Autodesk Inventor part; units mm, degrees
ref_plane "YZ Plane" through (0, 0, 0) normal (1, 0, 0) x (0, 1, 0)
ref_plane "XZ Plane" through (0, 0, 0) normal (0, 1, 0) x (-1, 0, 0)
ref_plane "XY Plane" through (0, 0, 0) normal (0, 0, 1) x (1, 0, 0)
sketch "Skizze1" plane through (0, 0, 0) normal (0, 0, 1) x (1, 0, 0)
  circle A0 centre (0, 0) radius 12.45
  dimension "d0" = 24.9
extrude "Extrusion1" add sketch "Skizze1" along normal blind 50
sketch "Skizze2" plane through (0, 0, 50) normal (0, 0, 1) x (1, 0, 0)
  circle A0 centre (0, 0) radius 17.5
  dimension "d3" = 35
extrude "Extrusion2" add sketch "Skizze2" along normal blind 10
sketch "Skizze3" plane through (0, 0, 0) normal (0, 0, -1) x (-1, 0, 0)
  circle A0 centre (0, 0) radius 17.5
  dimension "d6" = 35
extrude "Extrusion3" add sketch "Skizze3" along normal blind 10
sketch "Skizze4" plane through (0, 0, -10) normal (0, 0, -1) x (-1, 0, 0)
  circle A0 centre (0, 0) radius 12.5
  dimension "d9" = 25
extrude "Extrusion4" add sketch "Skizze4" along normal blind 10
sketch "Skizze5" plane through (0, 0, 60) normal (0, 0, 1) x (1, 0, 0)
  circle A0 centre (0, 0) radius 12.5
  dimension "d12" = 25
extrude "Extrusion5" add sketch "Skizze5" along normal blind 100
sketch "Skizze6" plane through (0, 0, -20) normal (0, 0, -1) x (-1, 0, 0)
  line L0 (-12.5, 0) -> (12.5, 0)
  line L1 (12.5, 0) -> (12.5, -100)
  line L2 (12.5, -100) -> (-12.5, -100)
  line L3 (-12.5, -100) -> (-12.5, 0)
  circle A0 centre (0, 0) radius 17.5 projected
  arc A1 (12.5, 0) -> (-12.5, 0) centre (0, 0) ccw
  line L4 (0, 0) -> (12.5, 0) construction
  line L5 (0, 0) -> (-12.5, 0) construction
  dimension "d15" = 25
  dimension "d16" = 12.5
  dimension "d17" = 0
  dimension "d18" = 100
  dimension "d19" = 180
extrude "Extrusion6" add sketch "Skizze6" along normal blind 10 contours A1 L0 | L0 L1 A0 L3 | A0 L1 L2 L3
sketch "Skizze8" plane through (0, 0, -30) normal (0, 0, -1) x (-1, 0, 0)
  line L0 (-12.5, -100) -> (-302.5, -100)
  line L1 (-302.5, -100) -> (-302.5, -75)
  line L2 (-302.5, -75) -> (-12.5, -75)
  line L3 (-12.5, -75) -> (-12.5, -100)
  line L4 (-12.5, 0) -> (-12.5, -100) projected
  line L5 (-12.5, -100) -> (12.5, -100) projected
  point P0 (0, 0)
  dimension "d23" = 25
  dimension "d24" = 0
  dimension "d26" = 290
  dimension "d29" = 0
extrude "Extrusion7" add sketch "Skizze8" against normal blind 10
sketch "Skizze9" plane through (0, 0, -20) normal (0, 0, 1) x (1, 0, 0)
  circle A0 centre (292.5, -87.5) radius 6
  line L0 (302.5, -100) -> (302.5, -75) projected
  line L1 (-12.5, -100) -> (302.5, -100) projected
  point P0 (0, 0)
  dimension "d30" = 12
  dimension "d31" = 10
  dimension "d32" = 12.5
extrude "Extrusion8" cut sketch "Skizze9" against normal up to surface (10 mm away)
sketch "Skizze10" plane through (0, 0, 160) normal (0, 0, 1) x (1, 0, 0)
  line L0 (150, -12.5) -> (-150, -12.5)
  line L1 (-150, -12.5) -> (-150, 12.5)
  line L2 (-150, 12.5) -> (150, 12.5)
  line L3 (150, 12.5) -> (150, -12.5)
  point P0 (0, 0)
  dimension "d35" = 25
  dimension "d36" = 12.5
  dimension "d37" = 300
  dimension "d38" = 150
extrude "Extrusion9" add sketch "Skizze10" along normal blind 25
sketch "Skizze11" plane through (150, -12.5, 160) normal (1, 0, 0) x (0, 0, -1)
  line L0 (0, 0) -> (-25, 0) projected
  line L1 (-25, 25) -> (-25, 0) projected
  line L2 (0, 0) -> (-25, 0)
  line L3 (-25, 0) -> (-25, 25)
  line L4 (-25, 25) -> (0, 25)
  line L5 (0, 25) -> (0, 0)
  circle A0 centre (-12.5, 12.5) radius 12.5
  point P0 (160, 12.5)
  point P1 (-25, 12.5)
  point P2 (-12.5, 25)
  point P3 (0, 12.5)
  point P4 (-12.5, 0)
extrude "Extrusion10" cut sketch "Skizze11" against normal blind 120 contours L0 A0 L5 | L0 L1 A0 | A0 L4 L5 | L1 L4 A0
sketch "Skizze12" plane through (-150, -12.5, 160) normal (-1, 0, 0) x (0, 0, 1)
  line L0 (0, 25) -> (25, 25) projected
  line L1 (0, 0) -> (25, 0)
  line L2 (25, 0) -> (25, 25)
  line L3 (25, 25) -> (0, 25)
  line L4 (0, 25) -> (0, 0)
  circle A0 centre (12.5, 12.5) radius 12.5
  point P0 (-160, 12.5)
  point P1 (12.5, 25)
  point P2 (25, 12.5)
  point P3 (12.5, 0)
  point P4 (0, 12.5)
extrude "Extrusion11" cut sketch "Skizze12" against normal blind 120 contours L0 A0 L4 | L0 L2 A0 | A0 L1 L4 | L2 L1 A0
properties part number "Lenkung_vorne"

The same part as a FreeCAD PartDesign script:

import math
import FreeCAD as App
import Part
import Sketcher
Q = App.Units.Quantity

doc = App.newDocument("Part")
body = doc.addObject("PartDesign::Body", "Body")

sketch1 = body.newObject("Sketcher::SketchObject", "Sketch")
sketch1.AttachmentSupport = (doc.getObject("XY_Plane"), [""])
sketch1.MapMode = "FlatFace"
sketch1.addGeometry(Part.Circle(App.Vector(0, 0, 0), App.Vector(0, 0, 1), 12), False)
sketch1.addConstraint([
    Sketcher.Constraint("Coincident", 0, 3, -1, 1),
    Sketcher.Constraint("Diameter", 0, Q("24.9 mm")),
])
pad1 = body.newObject("PartDesign::Pad", "Pad")
pad1.Profile = sketch1
pad1.Length = 50

sketch2 = body.newObject("Sketcher::SketchObject", "Sketch001")
sketch2.AttachmentSupport = (doc.getObject("XY_Plane"), [""])
sketch2.MapMode = "FlatFace"
sketch2.AttachmentOffset = App.Placement(App.Vector(0, 0, 50), App.Rotation())
sketch2.addGeometry(Part.Circle(App.Vector(0, 0, 0), App.Vector(0, 0, 1), 18), False)
sketch2.addConstraint([
    Sketcher.Constraint("Coincident", 0, 3, -1, 1),
    Sketcher.Constraint("Diameter", 0, Q("35 mm")),
])
pad2 = body.newObject("PartDesign::Pad", "Pad001")
pad2.Profile = sketch2
pad2.Length = 10

sketch3 = body.newObject("Sketcher::SketchObject", "Sketch002")
sketch3.AttachmentSupport = (doc.getObject("XY_Plane"), [""])
sketch3.MapMode = "FlatFace"
sketch3.addGeometry(Part.Circle(App.Vector(0, 0, 0), App.Vector(0, 0, 1), 18), False)
sketch3.addConstraint([
    Sketcher.Constraint("Coincident", 0, 3, -1, 1),
    Sketcher.Constraint("Diameter", 0, Q("35 mm")),
])
pad3 = body.newObject("PartDesign::Pad", "Pad002")
pad3.Profile = sketch3
pad3.Length = 10
pad3.Reversed = True

sketch4 = body.newObject("Sketcher::SketchObject", "Sketch003")
sketch4.AttachmentSupport = (doc.getObject("XY_Plane"), [""])
sketch4.MapMode = "FlatFace"
sketch4.AttachmentOffset = App.Placement(App.Vector(0, 0, -10), App.Rotation())
sketch4.addGeometry(Part.Circle(App.Vector(0, 0, 0), App.Vector(0, 0, 1), 12), False)
sketch4.addConstraint([
    Sketcher.Constraint("Coincident", 0, 3, -1, 1),
    Sketcher.Constraint("Diameter", 0, Q("25 mm")),
])
pad4 = body.newObject("PartDesign::Pad", "Pad003")
pad4.Profile = sketch4
pad4.Length = 10
pad4.Reversed = True

sketch5 = body.newObject("Sketcher::SketchObject", "Sketch004")
sketch5.AttachmentSupport = (doc.getObject("XY_Plane"), [""])
sketch5.MapMode = "FlatFace"
sketch5.AttachmentOffset = App.Placement(App.Vector(0, 0, 60), App.Rotation())
sketch5.addGeometry(Part.Circle(App.Vector(0, 0, 0), App.Vector(0, 0, 1), 12), False)
sketch5.addConstraint([
    Sketcher.Constraint("Coincident", 0, 3, -1, 1),
    Sketcher.Constraint("Diameter", 0, Q("25 mm")),
])
pad5 = body.newObject("PartDesign::Pad", "Pad004")
pad5.Profile = sketch5
pad5.Length = 100

sketch6 = body.newObject("Sketcher::SketchObject", "Sketch005")
sketch6.AttachmentSupport = (doc.getObject("XY_Plane"), [""])
sketch6.MapMode = "FlatFace"
sketch6.AttachmentOffset = App.Placement(App.Vector(0, 0, -20), App.Rotation())
sketch6.addGeometry([
    Part.ArcOfCircle(Part.Circle(App.Vector(0, 0, 0), App.Vector(0, 0, 1), 12), math.radians(0), math.radians(180)),
    Part.LineSegment(App.Vector(12, 0, 0), App.Vector(12, -100, 0)),
    Part.LineSegment(App.Vector(12, -100, 0), App.Vector(-12, -100, 0)),
    Part.LineSegment(App.Vector(-12, -100, 0), App.Vector(-12, 0, 0)),
], False)
sketch6.addConstraint([
    Sketcher.Constraint("Tangent", 0, 1, 1, 1),
    Sketcher.Constraint("Coincident", 1, 2, 2, 1),
    Sketcher.Constraint("Coincident", 2, 2, 3, 1),
    Sketcher.Constraint("Tangent", 3, 2, 0, 2),
    Sketcher.Constraint("Vertical", 1),
    Sketcher.Constraint("Horizontal", 2),
    Sketcher.Constraint("Vertical", 3),
    Sketcher.Constraint("Coincident", 0, 3, -1, 1),
    Sketcher.Constraint("Radius", 0, Q("12.5 mm")),
    Sketcher.Constraint("DistanceY", 1, 2, 1, 1, Q("100 mm")),
])
pad6 = body.newObject("PartDesign::Pad", "Pad005")
pad6.Profile = sketch6
pad6.Length = 10
pad6.Reversed = True

sketch7 = body.newObject("Sketcher::SketchObject", "Sketch006")
sketch7.AttachmentSupport = (doc.getObject("XY_Plane"), [""])
sketch7.MapMode = "FlatFace"
sketch7.AttachmentOffset = App.Placement(App.Vector(0, 0, -30), App.Rotation())
sketch7.addGeometry([
    Part.LineSegment(App.Vector(302, -100, 0), App.Vector(12, -100, 0)),
    Part.LineSegment(App.Vector(12, -100, 0), App.Vector(12, -75, 0)),
    Part.LineSegment(App.Vector(12, -75, 0), App.Vector(302, -75, 0)),
    Part.LineSegment(App.Vector(302, -75, 0), App.Vector(302, -100, 0)),
], False)
sketch7.addConstraint([
    Sketcher.Constraint("Coincident", 0, 2, 1, 1),
    Sketcher.Constraint("Coincident", 1, 2, 2, 1),
    Sketcher.Constraint("Coincident", 2, 2, 3, 1),
    Sketcher.Constraint("Coincident", 3, 2, 0, 1),
    Sketcher.Constraint("Horizontal", 0),
    Sketcher.Constraint("Vertical", 1),
    Sketcher.Constraint("Horizontal", 2),
    Sketcher.Constraint("Vertical", 3),
    Sketcher.Constraint("DistanceX", 0, 2, 0, 1, Q("290 mm")),
    Sketcher.Constraint("DistanceY", 1, 1, 1, 2, Q("25 mm")),
    Sketcher.Constraint("DistanceY", 0, 2, -1, 1, Q("100 mm")),
    Sketcher.Constraint("DistanceX", -1, 1, 0, 2, Q("12.5 mm")),
])
pad7 = body.newObject("PartDesign::Pad", "Pad006")
pad7.Profile = sketch7
pad7.Length = 10

sketch8 = body.newObject("Sketcher::SketchObject", "Sketch007")
sketch8.AttachmentSupport = (doc.getObject("XY_Plane"), [""])
sketch8.MapMode = "FlatFace"
sketch8.AttachmentOffset = App.Placement(App.Vector(0, 0, -20), App.Rotation())
sketch8.addGeometry(Part.Circle(App.Vector(292, -88, 0), App.Vector(0, 0, 1), 6), False)
sketch8.addConstraint([
    Sketcher.Constraint("Diameter", 0, Q("12 mm")),
    Sketcher.Constraint("DistanceX", -1, 1, 0, 3, Q("292.5 mm")),
    Sketcher.Constraint("DistanceY", 0, 3, -1, 1, Q("87.5 mm")),
])
pocket1 = body.newObject("PartDesign::Pocket", "Pocket")
pocket1.Profile = sketch8
pocket1.Length = 10

sketch9 = body.newObject("Sketcher::SketchObject", "Sketch008")
sketch9.AttachmentSupport = (doc.getObject("XY_Plane"), [""])
sketch9.MapMode = "FlatFace"
sketch9.AttachmentOffset = App.Placement(App.Vector(0, 0, 160), App.Rotation())
sketch9.addGeometry([
    Part.LineSegment(App.Vector(-150, -12, 0), App.Vector(150, -12, 0)),
    Part.LineSegment(App.Vector(150, -12, 0), App.Vector(150, 12, 0)),
    Part.LineSegment(App.Vector(150, 12, 0), App.Vector(-150, 12, 0)),
    Part.LineSegment(App.Vector(-150, 12, 0), App.Vector(-150, -12, 0)),
], False)
sketch9.addConstraint([
    Sketcher.Constraint("Coincident", 0, 2, 1, 1),
    Sketcher.Constraint("Coincident", 1, 2, 2, 1),
    Sketcher.Constraint("Coincident", 2, 2, 3, 1),
    Sketcher.Constraint("Coincident", 3, 2, 0, 1),
    Sketcher.Constraint("Horizontal", 0),
    Sketcher.Constraint("Vertical", 1),
    Sketcher.Constraint("Horizontal", 2),
    Sketcher.Constraint("Vertical", 3),
    Sketcher.Constraint("Symmetric", 0, 2, 2, 2, -1, 1),
    Sketcher.Constraint("DistanceX", 0, 1, 0, 2, Q("300 mm")),
    Sketcher.Constraint("DistanceY", 1, 1, 1, 2, Q("25 mm")),
])
pad8 = body.newObject("PartDesign::Pad", "Pad007")
pad8.Profile = sketch9
pad8.Length = 25

sketch10 = body.newObject("Sketcher::SketchObject", "Sketch009")
sketch10.AttachmentSupport = (doc.getObject("YZ_Plane"), [""])
sketch10.MapMode = "FlatFace"
sketch10.AttachmentOffset = App.Placement(App.Vector(0, 0, 150), App.Rotation())
sketch10.addGeometry([
    Part.LineSegment(App.Vector(-12, 172, 0), App.Vector(-12, 160, 0)),
    Part.LineSegment(App.Vector(-12, 160, 0), App.Vector(0, 160, 0)),
    Part.ArcOfCircle(Part.Circle(App.Vector(0, 172, 0), App.Vector(0, 0, 1), 12), math.radians(180), math.radians(270)),
    Part.LineSegment(App.Vector(-12, 185, 0), App.Vector(-12, 172, 0)),
    Part.ArcOfCircle(Part.Circle(App.Vector(0, 172, 0), App.Vector(0, 0, 1), 12), math.radians(90), math.radians(180)),
    Part.LineSegment(App.Vector(0, 185, 0), App.Vector(-12, 185, 0)),
    Part.ArcOfCircle(Part.Circle(App.Vector(0, 172, 0), App.Vector(0, 0, 1), 12), math.radians(-90), math.radians(0)),
    Part.LineSegment(App.Vector(0, 160, 0), App.Vector(12, 160, 0)),
    Part.LineSegment(App.Vector(12, 160, 0), App.Vector(12, 172, 0)),
    Part.LineSegment(App.Vector(12, 185, 0), App.Vector(0, 185, 0)),
    Part.ArcOfCircle(Part.Circle(App.Vector(0, 172, 0), App.Vector(0, 0, 1), 12), math.radians(0), math.radians(90)),
    Part.LineSegment(App.Vector(12, 172, 0), App.Vector(12, 185, 0)),
], False)
sketch10.addConstraint([
    Sketcher.Constraint("Coincident", 0, 2, 1, 1),
    Sketcher.Constraint("Tangent", 1, 2, 2, 2),
    Sketcher.Constraint("Tangent", 2, 1, 0, 1),
    Sketcher.Constraint("Tangent", 3, 2, 4, 2),
    Sketcher.Constraint("Tangent", 4, 1, 5, 1),
    Sketcher.Constraint("Coincident", 5, 2, 3, 1),
    Sketcher.Constraint("Tangent", 6, 1, 7, 1),
    Sketcher.Constraint("Coincident", 7, 2, 8, 1),
    Sketcher.Constraint("Tangent", 8, 2, 6, 2),
    Sketcher.Constraint("Tangent", 9, 2, 10, 2),
    Sketcher.Constraint("Tangent", 10, 1, 11, 1),
    Sketcher.Constraint("Coincident", 11, 2, 9, 1),
    Sketcher.Constraint("Vertical", 0),
    Sketcher.Constraint("Horizontal", 1),
    Sketcher.Constraint("Vertical", 3),
    Sketcher.Constraint("Horizontal", 5),
    Sketcher.Constraint("Horizontal", 7),
    Sketcher.Constraint("Vertical", 8),
    Sketcher.Constraint("Horizontal", 9),
    Sketcher.Constraint("Vertical", 11),
    Sketcher.Constraint("Coincident", 4, 3, 2, 3),
    Sketcher.Constraint("Coincident", 6, 3, 2, 3),
    Sketcher.Constraint("Coincident", 10, 3, 2, 3),
    Sketcher.Constraint("Equal", 2, 4),
    Sketcher.Constraint("Equal", 4, 6),
    Sketcher.Constraint("Equal", 6, 10),
    Sketcher.Constraint("PointOnObject", 2, 3, -2),
    Sketcher.Constraint("Radius", 2, Q("12.5 mm")),
    Sketcher.Constraint("DistanceY", -1, 1, 0, 2, Q("160 mm")),
])
pocket2 = body.newObject("PartDesign::Pocket", "Pocket001")
pocket2.Profile = sketch10
pocket2.Length = 120

sketch11 = body.newObject("Sketcher::SketchObject", "Sketch010")
sketch11.AttachmentSupport = (doc.getObject("YZ_Plane"), [""])
sketch11.MapMode = "FlatFace"
sketch11.AttachmentOffset = App.Placement(App.Vector(0, 0, -150), App.Rotation())
sketch11.addGeometry([
    Part.LineSegment(App.Vector(12, 172, 0), App.Vector(12, 160, 0)),
    Part.LineSegment(App.Vector(12, 160, 0), App.Vector(0, 160, 0)),
    Part.ArcOfCircle(Part.Circle(App.Vector(0, 172, 0), App.Vector(0, 0, 1), 12), math.radians(-90), math.radians(0)),
    Part.LineSegment(App.Vector(12, 185, 0), App.Vector(12, 172, 0)),
    Part.ArcOfCircle(Part.Circle(App.Vector(0, 172, 0), App.Vector(0, 0, 1), 12), math.radians(0), math.radians(90)),
    Part.LineSegment(App.Vector(0, 185, 0), App.Vector(12, 185, 0)),
    Part.ArcOfCircle(Part.Circle(App.Vector(0, 172, 0), App.Vector(0, 0, 1), 12), math.radians(180), math.radians(270)),
    Part.LineSegment(App.Vector(0, 160, 0), App.Vector(-12, 160, 0)),
    Part.LineSegment(App.Vector(-12, 160, 0), App.Vector(-12, 172, 0)),
    Part.LineSegment(App.Vector(-12, 185, 0), App.Vector(0, 185, 0)),
    Part.ArcOfCircle(Part.Circle(App.Vector(0, 172, 0), App.Vector(0, 0, 1), 12), math.radians(90), math.radians(180)),
    Part.LineSegment(App.Vector(-12, 172, 0), App.Vector(-12, 185, 0)),
], False)
sketch11.addConstraint([
    Sketcher.Constraint("Coincident", 0, 2, 1, 1),
    Sketcher.Constraint("Tangent", 1, 2, 2, 1),
    Sketcher.Constraint("Tangent", 2, 2, 0, 1),
    Sketcher.Constraint("Tangent", 3, 2, 4, 1),
    Sketcher.Constraint("Tangent", 4, 2, 5, 1),
    Sketcher.Constraint("Coincident", 5, 2, 3, 1),
    Sketcher.Constraint("Tangent", 6, 2, 7, 1),
    Sketcher.Constraint("Coincident", 7, 2, 8, 1),
    Sketcher.Constraint("Tangent", 8, 2, 6, 1),
    Sketcher.Constraint("Tangent", 9, 2, 10, 1),
    Sketcher.Constraint("Tangent", 10, 2, 11, 1),
    Sketcher.Constraint("Coincident", 11, 2, 9, 1),
    Sketcher.Constraint("Vertical", 0),
    Sketcher.Constraint("Horizontal", 1),
    Sketcher.Constraint("Vertical", 3),
    Sketcher.Constraint("Horizontal", 5),
    Sketcher.Constraint("Horizontal", 7),
    Sketcher.Constraint("Vertical", 8),
    Sketcher.Constraint("Horizontal", 9),
    Sketcher.Constraint("Vertical", 11),
    Sketcher.Constraint("Coincident", 4, 3, 2, 3),
    Sketcher.Constraint("Coincident", 6, 3, 2, 3),
    Sketcher.Constraint("Coincident", 10, 3, 2, 3),
    Sketcher.Constraint("Equal", 2, 4),
    Sketcher.Constraint("Equal", 4, 6),
    Sketcher.Constraint("Equal", 6, 10),
    Sketcher.Constraint("PointOnObject", 2, 3, -2),
    Sketcher.Constraint("Radius", 2, Q("12.5 mm")),
    Sketcher.Constraint("DistanceY", -1, 1, 0, 2, Q("160 mm")),
])
pocket3 = body.newObject("PartDesign::Pocket", "Pocket002")
pocket3.Profile = sketch11
pocket3.Length = 120
pocket3.Reversed = True

doc.recompute()
